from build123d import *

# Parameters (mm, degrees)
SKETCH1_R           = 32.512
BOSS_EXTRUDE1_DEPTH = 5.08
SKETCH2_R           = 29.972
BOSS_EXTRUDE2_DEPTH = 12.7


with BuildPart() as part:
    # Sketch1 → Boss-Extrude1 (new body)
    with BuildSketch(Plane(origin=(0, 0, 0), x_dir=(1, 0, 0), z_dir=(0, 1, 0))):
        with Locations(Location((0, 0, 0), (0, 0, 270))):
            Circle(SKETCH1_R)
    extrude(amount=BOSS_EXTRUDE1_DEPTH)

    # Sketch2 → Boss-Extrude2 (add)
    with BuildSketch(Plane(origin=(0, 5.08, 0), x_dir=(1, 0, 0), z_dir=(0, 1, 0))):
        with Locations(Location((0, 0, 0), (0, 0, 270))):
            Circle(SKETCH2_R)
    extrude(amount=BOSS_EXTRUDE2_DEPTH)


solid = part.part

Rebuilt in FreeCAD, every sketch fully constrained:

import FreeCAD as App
import Part
import Sketcher
Q = App.Units.Quantity

doc = App.newDocument("Part")
body = doc.addObject("PartDesign::Body", "Body")

sketch1 = body.newObject("Sketcher::SketchObject", "Sketch")
sketch1.AttachmentSupport = (doc.getObject("XZ_Plane"), [""])
sketch1.MapMode = "FlatFace"
sketch1.addGeometry(Part.Circle(App.Vector(0, 0, 0), App.Vector(0, 0, 1), 33), False)
sketch1.addConstraint([
    Sketcher.Constraint("Coincident", 0, 3, -1, 1),
    Sketcher.Constraint("Diameter", 0, Q("2.56 in")),
])
pad1 = body.newObject("PartDesign::Pad", "Pad")
pad1.Profile = sketch1
pad1.Length = Q("0.2 in")
pad1.Reversed = True

sketch2 = body.newObject("Sketcher::SketchObject", "Sketch001")
sketch2.AttachmentSupport = (doc.getObject("XZ_Plane"), [""])
sketch2.MapMode = "FlatFace"
sketch2.AttachmentOffset = App.Placement(App.Vector(0, 0, -0.2 * 25.4), App.Rotation())
sketch2.addGeometry(Part.Circle(App.Vector(0, 0, 0), App.Vector(0, 0, 1), 30), False)
sketch2.addConstraint([
    Sketcher.Constraint("Coincident", 0, 3, -1, 1),
    Sketcher.Constraint("Diameter", 0, Q("2.36 in")),
])
pad2 = body.newObject("PartDesign::Pad", "Pad001")
pad2.Profile = sketch2
pad2.Length = Q("0.5 in")
pad2.Reversed = True

doc.recompute()
